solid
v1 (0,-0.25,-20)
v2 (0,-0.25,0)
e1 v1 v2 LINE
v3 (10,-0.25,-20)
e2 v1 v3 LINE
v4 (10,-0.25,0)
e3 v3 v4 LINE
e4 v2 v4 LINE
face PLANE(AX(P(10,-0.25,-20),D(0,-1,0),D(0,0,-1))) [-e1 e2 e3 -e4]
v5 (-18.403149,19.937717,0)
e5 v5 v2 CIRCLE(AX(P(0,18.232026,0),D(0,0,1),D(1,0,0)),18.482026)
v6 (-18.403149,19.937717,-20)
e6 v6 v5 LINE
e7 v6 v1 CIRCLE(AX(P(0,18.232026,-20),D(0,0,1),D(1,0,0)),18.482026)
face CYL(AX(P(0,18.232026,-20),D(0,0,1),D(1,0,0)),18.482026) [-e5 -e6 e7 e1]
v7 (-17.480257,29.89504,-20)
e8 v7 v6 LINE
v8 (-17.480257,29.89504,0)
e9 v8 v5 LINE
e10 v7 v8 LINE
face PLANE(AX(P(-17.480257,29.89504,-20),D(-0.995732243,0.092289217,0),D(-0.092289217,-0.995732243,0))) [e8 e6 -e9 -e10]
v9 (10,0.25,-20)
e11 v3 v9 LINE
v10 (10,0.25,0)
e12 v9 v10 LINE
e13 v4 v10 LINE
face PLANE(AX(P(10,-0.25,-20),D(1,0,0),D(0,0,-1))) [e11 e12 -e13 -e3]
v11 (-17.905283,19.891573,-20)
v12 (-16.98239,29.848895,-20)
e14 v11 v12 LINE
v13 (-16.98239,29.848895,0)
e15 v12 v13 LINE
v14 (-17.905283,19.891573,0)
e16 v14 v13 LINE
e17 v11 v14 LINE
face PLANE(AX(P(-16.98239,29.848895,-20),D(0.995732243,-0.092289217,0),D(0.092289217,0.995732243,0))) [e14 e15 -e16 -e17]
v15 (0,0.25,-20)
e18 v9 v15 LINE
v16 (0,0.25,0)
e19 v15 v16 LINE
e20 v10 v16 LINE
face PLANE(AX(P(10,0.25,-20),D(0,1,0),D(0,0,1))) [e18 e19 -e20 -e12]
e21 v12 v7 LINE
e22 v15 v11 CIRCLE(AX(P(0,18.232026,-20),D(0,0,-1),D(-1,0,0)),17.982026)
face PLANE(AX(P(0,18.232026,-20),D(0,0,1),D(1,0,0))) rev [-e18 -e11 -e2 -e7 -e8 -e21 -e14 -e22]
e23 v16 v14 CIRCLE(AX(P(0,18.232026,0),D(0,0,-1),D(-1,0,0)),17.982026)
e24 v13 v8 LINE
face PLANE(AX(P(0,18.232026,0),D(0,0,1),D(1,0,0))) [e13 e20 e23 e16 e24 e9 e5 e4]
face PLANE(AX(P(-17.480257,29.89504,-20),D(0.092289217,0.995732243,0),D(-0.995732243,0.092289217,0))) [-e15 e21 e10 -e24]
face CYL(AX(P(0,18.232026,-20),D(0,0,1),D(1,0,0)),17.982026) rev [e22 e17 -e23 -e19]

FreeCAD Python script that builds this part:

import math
import FreeCAD as App
import Part
import Sketcher

V = App.Vector

doc = App.newDocument("Part")
body = doc.addObject("PartDesign::Body", "Body")

# Sketch on XY plane
sketch1 = body.newObject("Sketcher::SketchObject", "Sketch")
sketch1.AttachmentSupport = (doc.getObject("XY_Plane"), [""])
sketch1.MapMode = "FlatFace"
sketch1.addGeometry([
    Part.LineSegment(V(10, -0.2, 0), V(10, 0.2, 0)),  # 0
    Part.LineSegment(V(10, 0.2, 0), V(0, 0.2, 0)),  # 1
    Part.ArcOfCircle(Part.Circle(V(0, 18.2, 0), V(0, 0, 1), 18), math.radians(175), math.radians(270)),  # 2
    Part.LineSegment(V(-17.9, 19.9, 0), V(-17, 29.8, 0)),  # 3
    Part.LineSegment(V(-17, 29.8, 0), V(-17.5, 29.9, 0)),  # 4
    Part.LineSegment(V(-17.5, 29.9, 0), V(-18.4, 19.9, 0)),  # 5
    Part.ArcOfCircle(Part.Circle(V(0, 18.2, 0), V(0, 0, 1), 18.5), math.radians(175), math.radians(270)),  # 6
    Part.LineSegment(V(0, -0.2, 0), V(10, -0.2, 0)),  # 7
], False)
sketch1.addConstraint([
    Sketcher.Constraint("Coincident", 0, 2, 1, 1),
    Sketcher.Constraint("Tangent", 1, 2, 2, 2),
    Sketcher.Constraint("Tangent", 2, 1, 3, 1),
    Sketcher.Constraint("Coincident", 3, 2, 4, 1),
    Sketcher.Constraint("Coincident", 4, 2, 5, 1),
    Sketcher.Constraint("Tangent", 5, 2, 6, 1),
    Sketcher.Constraint("Tangent", 6, 2, 7, 1),
    Sketcher.Constraint("Coincident", 7, 2, 0, 1),
    Sketcher.Constraint("Vertical", 0),
    Sketcher.Constraint("Horizontal", 1),
    Sketcher.Constraint("Horizontal", 7),
    Sketcher.Constraint("Coincident", 6, 3, 2, 3),
    Sketcher.Constraint("Symmetric", 1, 2, 6, 2, -1, 1),
    Sketcher.Constraint("Perpendicular", 3, 4),
    Sketcher.Constraint("Perpendicular", 4, 5),
    Sketcher.Constraint("DistanceX", 1, 2, 1, 1, 10.0),
    Sketcher.Constraint("Distance", 3, 10.0),
    Sketcher.Constraint("DistanceY", 0, 1, 0, 2, 0.5),
    Sketcher.Constraint("Radius", 2, 17.982026),
    Sketcher.Constraint("DistanceX", 3, 2, -1, 1, 16.98239),
])
pad1 = body.newObject("PartDesign::Pad", "Pad")
pad1.Profile = sketch1
pad1.Length = 20
pad1.Reversed = True

doc.recompute()
